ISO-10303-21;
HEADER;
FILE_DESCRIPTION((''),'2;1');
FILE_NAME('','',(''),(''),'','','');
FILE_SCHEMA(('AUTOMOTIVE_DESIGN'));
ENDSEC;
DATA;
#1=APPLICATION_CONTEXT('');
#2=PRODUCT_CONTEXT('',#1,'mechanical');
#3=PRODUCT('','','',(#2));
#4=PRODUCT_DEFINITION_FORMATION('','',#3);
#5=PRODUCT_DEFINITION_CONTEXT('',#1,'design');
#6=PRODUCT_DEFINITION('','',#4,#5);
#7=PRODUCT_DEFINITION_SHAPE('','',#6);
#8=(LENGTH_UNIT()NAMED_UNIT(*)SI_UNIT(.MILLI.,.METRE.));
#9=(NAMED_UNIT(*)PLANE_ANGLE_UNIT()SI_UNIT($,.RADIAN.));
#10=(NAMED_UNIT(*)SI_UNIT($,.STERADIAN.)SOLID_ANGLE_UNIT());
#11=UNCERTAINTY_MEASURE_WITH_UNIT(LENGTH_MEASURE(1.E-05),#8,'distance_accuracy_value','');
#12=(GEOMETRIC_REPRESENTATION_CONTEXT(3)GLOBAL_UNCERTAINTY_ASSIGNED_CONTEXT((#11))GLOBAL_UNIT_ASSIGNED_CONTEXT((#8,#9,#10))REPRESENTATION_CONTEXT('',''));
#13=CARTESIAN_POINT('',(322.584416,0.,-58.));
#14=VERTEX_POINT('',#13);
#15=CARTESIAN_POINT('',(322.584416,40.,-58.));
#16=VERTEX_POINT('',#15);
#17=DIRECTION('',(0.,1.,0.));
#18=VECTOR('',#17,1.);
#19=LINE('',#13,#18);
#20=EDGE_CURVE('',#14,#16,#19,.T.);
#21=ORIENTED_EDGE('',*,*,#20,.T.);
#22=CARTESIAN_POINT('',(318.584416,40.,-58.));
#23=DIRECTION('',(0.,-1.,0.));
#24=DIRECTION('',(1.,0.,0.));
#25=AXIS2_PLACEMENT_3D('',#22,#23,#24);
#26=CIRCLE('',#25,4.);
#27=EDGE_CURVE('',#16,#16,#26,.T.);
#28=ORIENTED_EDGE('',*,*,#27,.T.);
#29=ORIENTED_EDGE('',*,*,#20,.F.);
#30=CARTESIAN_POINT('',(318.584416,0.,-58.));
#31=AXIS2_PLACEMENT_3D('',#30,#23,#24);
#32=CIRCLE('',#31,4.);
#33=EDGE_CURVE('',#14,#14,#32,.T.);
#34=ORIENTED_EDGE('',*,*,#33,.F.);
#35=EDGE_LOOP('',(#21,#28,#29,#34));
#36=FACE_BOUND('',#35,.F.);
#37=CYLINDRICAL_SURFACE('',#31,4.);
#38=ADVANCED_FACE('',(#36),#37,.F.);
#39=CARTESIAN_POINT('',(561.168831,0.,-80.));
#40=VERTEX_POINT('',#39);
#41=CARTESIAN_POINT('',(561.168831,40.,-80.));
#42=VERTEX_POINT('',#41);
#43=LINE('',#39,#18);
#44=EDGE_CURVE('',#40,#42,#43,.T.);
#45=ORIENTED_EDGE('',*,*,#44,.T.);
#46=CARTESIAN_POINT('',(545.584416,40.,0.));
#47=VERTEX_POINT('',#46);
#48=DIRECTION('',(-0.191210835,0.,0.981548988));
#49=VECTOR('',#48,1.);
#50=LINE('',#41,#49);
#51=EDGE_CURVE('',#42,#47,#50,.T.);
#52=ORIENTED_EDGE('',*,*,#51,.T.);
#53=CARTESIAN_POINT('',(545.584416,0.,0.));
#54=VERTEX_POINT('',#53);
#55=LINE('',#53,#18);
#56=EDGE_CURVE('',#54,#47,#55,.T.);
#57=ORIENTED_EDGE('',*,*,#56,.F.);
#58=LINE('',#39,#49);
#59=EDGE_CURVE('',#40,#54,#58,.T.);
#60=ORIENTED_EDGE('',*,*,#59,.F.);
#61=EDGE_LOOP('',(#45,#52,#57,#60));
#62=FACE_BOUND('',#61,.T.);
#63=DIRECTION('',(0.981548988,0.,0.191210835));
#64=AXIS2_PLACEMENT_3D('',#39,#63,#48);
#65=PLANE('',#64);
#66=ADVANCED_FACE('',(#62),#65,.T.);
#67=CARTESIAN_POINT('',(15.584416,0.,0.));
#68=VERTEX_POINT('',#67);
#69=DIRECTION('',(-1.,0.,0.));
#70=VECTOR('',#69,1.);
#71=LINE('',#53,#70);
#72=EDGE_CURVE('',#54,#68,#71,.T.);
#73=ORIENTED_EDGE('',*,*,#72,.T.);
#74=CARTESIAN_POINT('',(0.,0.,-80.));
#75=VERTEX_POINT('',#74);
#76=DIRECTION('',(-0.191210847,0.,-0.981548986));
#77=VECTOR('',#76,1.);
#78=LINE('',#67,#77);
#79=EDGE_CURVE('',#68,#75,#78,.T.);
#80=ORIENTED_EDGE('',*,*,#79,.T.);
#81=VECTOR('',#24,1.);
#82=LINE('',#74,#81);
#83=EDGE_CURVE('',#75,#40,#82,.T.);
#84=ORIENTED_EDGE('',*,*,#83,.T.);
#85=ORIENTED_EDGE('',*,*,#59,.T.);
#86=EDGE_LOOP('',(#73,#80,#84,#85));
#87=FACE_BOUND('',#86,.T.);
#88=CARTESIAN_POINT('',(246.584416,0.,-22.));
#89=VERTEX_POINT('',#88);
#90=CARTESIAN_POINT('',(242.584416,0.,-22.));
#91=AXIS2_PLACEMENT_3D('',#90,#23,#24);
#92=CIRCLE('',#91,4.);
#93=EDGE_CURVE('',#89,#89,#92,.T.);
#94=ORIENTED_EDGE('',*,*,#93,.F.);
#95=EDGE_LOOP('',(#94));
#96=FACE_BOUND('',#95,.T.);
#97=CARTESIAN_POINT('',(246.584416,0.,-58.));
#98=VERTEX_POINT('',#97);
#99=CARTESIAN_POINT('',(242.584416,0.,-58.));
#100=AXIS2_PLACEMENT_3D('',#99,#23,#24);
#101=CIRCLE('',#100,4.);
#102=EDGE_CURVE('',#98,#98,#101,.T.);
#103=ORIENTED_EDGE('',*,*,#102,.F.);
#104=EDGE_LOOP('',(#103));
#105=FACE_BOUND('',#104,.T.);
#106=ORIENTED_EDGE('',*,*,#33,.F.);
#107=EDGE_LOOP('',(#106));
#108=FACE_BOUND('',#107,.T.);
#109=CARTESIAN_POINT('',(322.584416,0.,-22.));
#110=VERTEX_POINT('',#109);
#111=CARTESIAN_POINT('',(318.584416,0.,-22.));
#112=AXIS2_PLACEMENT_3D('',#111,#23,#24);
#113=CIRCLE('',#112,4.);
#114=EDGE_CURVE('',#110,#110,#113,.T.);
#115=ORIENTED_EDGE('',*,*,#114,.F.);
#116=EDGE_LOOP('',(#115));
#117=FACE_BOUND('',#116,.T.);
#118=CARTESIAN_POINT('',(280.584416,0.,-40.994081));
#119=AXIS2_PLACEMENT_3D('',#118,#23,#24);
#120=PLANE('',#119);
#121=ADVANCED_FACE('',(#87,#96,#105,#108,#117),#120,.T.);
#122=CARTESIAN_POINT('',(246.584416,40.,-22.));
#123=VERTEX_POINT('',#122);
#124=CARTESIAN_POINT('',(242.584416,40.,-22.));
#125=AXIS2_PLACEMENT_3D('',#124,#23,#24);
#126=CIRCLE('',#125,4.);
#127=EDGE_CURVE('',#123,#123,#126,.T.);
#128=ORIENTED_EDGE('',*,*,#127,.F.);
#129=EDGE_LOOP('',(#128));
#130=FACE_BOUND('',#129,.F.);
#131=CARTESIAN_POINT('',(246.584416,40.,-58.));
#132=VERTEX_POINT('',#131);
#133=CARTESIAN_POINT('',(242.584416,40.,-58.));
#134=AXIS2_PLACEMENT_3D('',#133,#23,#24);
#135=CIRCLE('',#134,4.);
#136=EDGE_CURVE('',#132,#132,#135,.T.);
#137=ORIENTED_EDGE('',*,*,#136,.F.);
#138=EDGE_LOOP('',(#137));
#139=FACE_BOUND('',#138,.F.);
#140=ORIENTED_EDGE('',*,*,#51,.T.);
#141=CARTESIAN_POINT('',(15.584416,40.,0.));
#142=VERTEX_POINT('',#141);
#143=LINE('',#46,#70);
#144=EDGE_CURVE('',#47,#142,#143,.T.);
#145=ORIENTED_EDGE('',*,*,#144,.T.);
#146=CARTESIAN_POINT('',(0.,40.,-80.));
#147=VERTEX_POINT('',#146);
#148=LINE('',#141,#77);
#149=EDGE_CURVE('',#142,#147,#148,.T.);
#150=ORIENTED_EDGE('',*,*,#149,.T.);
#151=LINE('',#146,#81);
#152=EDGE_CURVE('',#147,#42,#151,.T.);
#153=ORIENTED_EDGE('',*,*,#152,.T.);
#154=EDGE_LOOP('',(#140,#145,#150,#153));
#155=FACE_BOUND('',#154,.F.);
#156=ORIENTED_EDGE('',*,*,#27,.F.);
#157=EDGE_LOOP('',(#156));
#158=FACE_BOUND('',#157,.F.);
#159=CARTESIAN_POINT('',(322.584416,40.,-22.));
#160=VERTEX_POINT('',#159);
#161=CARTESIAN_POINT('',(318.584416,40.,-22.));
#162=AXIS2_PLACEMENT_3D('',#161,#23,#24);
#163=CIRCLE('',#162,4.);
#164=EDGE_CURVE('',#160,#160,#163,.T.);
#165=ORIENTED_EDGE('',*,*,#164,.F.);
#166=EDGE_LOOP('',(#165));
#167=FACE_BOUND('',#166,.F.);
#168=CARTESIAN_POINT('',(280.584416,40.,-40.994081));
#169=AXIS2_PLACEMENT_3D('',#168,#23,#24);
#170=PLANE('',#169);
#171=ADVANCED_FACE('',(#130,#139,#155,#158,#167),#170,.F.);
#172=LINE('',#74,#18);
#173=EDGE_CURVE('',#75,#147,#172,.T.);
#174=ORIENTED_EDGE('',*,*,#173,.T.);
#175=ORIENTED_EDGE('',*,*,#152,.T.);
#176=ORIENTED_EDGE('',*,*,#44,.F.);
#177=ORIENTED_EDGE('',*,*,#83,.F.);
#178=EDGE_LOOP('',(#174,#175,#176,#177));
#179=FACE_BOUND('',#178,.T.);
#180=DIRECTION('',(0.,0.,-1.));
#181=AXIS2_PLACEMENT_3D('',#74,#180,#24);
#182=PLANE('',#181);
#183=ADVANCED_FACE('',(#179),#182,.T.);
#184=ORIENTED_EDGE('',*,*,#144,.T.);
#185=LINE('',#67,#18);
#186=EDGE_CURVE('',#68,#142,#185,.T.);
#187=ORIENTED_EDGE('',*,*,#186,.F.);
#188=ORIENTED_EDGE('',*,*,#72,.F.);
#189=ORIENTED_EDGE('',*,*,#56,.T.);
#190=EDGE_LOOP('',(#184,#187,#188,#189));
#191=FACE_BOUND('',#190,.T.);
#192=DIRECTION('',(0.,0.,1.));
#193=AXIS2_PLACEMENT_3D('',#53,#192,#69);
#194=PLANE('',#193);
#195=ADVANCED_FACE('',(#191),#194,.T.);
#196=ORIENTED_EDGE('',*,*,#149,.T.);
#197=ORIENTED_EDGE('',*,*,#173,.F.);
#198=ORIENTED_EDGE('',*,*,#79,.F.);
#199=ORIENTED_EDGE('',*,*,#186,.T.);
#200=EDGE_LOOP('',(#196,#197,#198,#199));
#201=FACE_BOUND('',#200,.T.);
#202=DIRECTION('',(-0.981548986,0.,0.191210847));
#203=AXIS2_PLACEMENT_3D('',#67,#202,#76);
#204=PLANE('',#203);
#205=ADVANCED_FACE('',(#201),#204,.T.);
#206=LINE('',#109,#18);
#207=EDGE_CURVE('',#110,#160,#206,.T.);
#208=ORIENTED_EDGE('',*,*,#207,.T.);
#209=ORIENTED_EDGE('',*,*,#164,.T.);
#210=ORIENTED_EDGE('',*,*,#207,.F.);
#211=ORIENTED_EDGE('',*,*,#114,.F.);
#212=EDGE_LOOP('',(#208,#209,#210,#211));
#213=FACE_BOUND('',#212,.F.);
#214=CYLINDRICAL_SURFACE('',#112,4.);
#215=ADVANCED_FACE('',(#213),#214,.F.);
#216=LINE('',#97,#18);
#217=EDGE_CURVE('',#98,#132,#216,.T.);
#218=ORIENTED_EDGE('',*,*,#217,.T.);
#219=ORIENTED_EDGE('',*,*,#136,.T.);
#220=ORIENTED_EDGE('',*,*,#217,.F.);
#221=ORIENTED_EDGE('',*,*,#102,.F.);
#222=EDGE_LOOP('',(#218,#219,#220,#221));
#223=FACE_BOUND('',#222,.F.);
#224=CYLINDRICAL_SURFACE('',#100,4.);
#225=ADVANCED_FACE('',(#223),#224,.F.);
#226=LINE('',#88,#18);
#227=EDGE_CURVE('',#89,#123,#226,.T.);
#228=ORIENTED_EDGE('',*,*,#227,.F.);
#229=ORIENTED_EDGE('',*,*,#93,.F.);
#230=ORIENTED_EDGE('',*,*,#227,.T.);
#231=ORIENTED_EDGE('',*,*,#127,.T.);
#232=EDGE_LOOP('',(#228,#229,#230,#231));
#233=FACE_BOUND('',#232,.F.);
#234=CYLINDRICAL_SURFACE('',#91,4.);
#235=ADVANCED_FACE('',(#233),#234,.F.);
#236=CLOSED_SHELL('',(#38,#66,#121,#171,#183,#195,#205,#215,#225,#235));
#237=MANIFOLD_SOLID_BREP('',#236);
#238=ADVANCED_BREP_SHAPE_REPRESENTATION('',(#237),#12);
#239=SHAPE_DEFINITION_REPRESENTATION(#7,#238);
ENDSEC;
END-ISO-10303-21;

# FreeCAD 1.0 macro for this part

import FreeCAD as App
import Part
import Sketcher
Q = App.Units.Quantity


def add_polygon(sketch, points):
    """Adds a closed chain of lines whose ends are joined by coincident constraints."""
    first, n = sketch.GeometryCount, len(points)
    for a, b in zip(points, points[1:] + points[:1]):
        sketch.addGeometry(Part.LineSegment(App.Vector(*a, 0), App.Vector(*b, 0)), False)
    for i in range(n):
        sketch.addConstraint(Sketcher.Constraint("Coincident", first + i, 2, first + (i + 1) % n, 1))

doc = App.newDocument("Part")
body = doc.addObject("PartDesign::Body", "Body")

sketch1 = body.newObject("Sketcher::SketchObject", "Sketch")
sketch1.AttachmentSupport = (doc.getObject("XZ_Plane"), [""])
sketch1.MapMode = "FlatFace"
add_polygon(sketch1, [(545.6, 0), (15.6, 0), (0, -80), (561.2, -80)])
sketch1.addGeometry(Part.Circle(App.Vector(242.6, -58, 0), App.Vector(0, 0, 1), 4), False)
sketch1.addGeometry(Part.Circle(App.Vector(318.6, -58, 0), App.Vector(0, 0, 1), 4), False)
sketch1.addGeometry(Part.Circle(App.Vector(242.6, -22, 0), App.Vector(0, 0, 1), 4), False)
sketch1.addGeometry(Part.Circle(App.Vector(318.6, -22, 0), App.Vector(0, 0, 1), 4), False)
sketch1.addConstraint(Sketcher.Constraint("Horizontal", 0))
sketch1.addConstraint(Sketcher.Constraint("Horizontal", 2))
sketch1.addConstraint(Sketcher.Constraint("Equal", 4, 5))
sketch1.addConstraint(Sketcher.Constraint("Equal", 5, 6))
sketch1.addConstraint(Sketcher.Constraint("Equal", 6, 7))
sketch1.addConstraint(Sketcher.Constraint("PointOnObject", 0, 2, -1))
sketch1.addConstraint(Sketcher.Constraint("PointOnObject", 1, 2, -2))
sketch1.addConstraint(Sketcher.Constraint("Horizontal", 4, 3, 5, 3))
sketch1.addConstraint(Sketcher.Constraint("Horizontal", 6, 3, 7, 3))
sketch1.addConstraint(Sketcher.Constraint("Vertical", 4, 3, 6, 3))
sketch1.addConstraint(Sketcher.Constraint("Vertical", 5, 3, 7, 3))
sketch1.addConstraint(Sketcher.Constraint("Equal", 1, 3))
sketch1.addConstraint(Sketcher.Constraint("Diameter", 4, Q("8 mm")))
sketch1.addConstraint(Sketcher.Constraint("DistanceX", 0, 2, 0, 1, Q("530 mm")))
sketch1.addConstraint(Sketcher.Constraint("DistanceY", 4, 3, -1, 1, Q("58 mm")))
sketch1.addConstraint(Sketcher.Constraint("DistanceY", 6, 3, -1, 1, Q("22 mm")))
sketch1.addConstraint(Sketcher.Constraint("DistanceY", 1, 2, -1, 1, Q("80 mm")))
sketch1.addConstraint(Sketcher.Constraint("DistanceX", 4, 3, 5, 3, Q("76 mm")))
sketch1.addConstraint(Sketcher.Constraint("DistanceX", 0, 2, 6, 3, Q("227 mm")))
sketch1.addConstraint(Sketcher.Constraint("DistanceX", 2, 1, 2, 2, Q("561.168831 mm")))
pad1 = body.newObject("PartDesign::Pad", "Pad")
pad1.Profile = sketch1
pad1.Length = 40
pad1.Reversed = True

doc.recompute()
